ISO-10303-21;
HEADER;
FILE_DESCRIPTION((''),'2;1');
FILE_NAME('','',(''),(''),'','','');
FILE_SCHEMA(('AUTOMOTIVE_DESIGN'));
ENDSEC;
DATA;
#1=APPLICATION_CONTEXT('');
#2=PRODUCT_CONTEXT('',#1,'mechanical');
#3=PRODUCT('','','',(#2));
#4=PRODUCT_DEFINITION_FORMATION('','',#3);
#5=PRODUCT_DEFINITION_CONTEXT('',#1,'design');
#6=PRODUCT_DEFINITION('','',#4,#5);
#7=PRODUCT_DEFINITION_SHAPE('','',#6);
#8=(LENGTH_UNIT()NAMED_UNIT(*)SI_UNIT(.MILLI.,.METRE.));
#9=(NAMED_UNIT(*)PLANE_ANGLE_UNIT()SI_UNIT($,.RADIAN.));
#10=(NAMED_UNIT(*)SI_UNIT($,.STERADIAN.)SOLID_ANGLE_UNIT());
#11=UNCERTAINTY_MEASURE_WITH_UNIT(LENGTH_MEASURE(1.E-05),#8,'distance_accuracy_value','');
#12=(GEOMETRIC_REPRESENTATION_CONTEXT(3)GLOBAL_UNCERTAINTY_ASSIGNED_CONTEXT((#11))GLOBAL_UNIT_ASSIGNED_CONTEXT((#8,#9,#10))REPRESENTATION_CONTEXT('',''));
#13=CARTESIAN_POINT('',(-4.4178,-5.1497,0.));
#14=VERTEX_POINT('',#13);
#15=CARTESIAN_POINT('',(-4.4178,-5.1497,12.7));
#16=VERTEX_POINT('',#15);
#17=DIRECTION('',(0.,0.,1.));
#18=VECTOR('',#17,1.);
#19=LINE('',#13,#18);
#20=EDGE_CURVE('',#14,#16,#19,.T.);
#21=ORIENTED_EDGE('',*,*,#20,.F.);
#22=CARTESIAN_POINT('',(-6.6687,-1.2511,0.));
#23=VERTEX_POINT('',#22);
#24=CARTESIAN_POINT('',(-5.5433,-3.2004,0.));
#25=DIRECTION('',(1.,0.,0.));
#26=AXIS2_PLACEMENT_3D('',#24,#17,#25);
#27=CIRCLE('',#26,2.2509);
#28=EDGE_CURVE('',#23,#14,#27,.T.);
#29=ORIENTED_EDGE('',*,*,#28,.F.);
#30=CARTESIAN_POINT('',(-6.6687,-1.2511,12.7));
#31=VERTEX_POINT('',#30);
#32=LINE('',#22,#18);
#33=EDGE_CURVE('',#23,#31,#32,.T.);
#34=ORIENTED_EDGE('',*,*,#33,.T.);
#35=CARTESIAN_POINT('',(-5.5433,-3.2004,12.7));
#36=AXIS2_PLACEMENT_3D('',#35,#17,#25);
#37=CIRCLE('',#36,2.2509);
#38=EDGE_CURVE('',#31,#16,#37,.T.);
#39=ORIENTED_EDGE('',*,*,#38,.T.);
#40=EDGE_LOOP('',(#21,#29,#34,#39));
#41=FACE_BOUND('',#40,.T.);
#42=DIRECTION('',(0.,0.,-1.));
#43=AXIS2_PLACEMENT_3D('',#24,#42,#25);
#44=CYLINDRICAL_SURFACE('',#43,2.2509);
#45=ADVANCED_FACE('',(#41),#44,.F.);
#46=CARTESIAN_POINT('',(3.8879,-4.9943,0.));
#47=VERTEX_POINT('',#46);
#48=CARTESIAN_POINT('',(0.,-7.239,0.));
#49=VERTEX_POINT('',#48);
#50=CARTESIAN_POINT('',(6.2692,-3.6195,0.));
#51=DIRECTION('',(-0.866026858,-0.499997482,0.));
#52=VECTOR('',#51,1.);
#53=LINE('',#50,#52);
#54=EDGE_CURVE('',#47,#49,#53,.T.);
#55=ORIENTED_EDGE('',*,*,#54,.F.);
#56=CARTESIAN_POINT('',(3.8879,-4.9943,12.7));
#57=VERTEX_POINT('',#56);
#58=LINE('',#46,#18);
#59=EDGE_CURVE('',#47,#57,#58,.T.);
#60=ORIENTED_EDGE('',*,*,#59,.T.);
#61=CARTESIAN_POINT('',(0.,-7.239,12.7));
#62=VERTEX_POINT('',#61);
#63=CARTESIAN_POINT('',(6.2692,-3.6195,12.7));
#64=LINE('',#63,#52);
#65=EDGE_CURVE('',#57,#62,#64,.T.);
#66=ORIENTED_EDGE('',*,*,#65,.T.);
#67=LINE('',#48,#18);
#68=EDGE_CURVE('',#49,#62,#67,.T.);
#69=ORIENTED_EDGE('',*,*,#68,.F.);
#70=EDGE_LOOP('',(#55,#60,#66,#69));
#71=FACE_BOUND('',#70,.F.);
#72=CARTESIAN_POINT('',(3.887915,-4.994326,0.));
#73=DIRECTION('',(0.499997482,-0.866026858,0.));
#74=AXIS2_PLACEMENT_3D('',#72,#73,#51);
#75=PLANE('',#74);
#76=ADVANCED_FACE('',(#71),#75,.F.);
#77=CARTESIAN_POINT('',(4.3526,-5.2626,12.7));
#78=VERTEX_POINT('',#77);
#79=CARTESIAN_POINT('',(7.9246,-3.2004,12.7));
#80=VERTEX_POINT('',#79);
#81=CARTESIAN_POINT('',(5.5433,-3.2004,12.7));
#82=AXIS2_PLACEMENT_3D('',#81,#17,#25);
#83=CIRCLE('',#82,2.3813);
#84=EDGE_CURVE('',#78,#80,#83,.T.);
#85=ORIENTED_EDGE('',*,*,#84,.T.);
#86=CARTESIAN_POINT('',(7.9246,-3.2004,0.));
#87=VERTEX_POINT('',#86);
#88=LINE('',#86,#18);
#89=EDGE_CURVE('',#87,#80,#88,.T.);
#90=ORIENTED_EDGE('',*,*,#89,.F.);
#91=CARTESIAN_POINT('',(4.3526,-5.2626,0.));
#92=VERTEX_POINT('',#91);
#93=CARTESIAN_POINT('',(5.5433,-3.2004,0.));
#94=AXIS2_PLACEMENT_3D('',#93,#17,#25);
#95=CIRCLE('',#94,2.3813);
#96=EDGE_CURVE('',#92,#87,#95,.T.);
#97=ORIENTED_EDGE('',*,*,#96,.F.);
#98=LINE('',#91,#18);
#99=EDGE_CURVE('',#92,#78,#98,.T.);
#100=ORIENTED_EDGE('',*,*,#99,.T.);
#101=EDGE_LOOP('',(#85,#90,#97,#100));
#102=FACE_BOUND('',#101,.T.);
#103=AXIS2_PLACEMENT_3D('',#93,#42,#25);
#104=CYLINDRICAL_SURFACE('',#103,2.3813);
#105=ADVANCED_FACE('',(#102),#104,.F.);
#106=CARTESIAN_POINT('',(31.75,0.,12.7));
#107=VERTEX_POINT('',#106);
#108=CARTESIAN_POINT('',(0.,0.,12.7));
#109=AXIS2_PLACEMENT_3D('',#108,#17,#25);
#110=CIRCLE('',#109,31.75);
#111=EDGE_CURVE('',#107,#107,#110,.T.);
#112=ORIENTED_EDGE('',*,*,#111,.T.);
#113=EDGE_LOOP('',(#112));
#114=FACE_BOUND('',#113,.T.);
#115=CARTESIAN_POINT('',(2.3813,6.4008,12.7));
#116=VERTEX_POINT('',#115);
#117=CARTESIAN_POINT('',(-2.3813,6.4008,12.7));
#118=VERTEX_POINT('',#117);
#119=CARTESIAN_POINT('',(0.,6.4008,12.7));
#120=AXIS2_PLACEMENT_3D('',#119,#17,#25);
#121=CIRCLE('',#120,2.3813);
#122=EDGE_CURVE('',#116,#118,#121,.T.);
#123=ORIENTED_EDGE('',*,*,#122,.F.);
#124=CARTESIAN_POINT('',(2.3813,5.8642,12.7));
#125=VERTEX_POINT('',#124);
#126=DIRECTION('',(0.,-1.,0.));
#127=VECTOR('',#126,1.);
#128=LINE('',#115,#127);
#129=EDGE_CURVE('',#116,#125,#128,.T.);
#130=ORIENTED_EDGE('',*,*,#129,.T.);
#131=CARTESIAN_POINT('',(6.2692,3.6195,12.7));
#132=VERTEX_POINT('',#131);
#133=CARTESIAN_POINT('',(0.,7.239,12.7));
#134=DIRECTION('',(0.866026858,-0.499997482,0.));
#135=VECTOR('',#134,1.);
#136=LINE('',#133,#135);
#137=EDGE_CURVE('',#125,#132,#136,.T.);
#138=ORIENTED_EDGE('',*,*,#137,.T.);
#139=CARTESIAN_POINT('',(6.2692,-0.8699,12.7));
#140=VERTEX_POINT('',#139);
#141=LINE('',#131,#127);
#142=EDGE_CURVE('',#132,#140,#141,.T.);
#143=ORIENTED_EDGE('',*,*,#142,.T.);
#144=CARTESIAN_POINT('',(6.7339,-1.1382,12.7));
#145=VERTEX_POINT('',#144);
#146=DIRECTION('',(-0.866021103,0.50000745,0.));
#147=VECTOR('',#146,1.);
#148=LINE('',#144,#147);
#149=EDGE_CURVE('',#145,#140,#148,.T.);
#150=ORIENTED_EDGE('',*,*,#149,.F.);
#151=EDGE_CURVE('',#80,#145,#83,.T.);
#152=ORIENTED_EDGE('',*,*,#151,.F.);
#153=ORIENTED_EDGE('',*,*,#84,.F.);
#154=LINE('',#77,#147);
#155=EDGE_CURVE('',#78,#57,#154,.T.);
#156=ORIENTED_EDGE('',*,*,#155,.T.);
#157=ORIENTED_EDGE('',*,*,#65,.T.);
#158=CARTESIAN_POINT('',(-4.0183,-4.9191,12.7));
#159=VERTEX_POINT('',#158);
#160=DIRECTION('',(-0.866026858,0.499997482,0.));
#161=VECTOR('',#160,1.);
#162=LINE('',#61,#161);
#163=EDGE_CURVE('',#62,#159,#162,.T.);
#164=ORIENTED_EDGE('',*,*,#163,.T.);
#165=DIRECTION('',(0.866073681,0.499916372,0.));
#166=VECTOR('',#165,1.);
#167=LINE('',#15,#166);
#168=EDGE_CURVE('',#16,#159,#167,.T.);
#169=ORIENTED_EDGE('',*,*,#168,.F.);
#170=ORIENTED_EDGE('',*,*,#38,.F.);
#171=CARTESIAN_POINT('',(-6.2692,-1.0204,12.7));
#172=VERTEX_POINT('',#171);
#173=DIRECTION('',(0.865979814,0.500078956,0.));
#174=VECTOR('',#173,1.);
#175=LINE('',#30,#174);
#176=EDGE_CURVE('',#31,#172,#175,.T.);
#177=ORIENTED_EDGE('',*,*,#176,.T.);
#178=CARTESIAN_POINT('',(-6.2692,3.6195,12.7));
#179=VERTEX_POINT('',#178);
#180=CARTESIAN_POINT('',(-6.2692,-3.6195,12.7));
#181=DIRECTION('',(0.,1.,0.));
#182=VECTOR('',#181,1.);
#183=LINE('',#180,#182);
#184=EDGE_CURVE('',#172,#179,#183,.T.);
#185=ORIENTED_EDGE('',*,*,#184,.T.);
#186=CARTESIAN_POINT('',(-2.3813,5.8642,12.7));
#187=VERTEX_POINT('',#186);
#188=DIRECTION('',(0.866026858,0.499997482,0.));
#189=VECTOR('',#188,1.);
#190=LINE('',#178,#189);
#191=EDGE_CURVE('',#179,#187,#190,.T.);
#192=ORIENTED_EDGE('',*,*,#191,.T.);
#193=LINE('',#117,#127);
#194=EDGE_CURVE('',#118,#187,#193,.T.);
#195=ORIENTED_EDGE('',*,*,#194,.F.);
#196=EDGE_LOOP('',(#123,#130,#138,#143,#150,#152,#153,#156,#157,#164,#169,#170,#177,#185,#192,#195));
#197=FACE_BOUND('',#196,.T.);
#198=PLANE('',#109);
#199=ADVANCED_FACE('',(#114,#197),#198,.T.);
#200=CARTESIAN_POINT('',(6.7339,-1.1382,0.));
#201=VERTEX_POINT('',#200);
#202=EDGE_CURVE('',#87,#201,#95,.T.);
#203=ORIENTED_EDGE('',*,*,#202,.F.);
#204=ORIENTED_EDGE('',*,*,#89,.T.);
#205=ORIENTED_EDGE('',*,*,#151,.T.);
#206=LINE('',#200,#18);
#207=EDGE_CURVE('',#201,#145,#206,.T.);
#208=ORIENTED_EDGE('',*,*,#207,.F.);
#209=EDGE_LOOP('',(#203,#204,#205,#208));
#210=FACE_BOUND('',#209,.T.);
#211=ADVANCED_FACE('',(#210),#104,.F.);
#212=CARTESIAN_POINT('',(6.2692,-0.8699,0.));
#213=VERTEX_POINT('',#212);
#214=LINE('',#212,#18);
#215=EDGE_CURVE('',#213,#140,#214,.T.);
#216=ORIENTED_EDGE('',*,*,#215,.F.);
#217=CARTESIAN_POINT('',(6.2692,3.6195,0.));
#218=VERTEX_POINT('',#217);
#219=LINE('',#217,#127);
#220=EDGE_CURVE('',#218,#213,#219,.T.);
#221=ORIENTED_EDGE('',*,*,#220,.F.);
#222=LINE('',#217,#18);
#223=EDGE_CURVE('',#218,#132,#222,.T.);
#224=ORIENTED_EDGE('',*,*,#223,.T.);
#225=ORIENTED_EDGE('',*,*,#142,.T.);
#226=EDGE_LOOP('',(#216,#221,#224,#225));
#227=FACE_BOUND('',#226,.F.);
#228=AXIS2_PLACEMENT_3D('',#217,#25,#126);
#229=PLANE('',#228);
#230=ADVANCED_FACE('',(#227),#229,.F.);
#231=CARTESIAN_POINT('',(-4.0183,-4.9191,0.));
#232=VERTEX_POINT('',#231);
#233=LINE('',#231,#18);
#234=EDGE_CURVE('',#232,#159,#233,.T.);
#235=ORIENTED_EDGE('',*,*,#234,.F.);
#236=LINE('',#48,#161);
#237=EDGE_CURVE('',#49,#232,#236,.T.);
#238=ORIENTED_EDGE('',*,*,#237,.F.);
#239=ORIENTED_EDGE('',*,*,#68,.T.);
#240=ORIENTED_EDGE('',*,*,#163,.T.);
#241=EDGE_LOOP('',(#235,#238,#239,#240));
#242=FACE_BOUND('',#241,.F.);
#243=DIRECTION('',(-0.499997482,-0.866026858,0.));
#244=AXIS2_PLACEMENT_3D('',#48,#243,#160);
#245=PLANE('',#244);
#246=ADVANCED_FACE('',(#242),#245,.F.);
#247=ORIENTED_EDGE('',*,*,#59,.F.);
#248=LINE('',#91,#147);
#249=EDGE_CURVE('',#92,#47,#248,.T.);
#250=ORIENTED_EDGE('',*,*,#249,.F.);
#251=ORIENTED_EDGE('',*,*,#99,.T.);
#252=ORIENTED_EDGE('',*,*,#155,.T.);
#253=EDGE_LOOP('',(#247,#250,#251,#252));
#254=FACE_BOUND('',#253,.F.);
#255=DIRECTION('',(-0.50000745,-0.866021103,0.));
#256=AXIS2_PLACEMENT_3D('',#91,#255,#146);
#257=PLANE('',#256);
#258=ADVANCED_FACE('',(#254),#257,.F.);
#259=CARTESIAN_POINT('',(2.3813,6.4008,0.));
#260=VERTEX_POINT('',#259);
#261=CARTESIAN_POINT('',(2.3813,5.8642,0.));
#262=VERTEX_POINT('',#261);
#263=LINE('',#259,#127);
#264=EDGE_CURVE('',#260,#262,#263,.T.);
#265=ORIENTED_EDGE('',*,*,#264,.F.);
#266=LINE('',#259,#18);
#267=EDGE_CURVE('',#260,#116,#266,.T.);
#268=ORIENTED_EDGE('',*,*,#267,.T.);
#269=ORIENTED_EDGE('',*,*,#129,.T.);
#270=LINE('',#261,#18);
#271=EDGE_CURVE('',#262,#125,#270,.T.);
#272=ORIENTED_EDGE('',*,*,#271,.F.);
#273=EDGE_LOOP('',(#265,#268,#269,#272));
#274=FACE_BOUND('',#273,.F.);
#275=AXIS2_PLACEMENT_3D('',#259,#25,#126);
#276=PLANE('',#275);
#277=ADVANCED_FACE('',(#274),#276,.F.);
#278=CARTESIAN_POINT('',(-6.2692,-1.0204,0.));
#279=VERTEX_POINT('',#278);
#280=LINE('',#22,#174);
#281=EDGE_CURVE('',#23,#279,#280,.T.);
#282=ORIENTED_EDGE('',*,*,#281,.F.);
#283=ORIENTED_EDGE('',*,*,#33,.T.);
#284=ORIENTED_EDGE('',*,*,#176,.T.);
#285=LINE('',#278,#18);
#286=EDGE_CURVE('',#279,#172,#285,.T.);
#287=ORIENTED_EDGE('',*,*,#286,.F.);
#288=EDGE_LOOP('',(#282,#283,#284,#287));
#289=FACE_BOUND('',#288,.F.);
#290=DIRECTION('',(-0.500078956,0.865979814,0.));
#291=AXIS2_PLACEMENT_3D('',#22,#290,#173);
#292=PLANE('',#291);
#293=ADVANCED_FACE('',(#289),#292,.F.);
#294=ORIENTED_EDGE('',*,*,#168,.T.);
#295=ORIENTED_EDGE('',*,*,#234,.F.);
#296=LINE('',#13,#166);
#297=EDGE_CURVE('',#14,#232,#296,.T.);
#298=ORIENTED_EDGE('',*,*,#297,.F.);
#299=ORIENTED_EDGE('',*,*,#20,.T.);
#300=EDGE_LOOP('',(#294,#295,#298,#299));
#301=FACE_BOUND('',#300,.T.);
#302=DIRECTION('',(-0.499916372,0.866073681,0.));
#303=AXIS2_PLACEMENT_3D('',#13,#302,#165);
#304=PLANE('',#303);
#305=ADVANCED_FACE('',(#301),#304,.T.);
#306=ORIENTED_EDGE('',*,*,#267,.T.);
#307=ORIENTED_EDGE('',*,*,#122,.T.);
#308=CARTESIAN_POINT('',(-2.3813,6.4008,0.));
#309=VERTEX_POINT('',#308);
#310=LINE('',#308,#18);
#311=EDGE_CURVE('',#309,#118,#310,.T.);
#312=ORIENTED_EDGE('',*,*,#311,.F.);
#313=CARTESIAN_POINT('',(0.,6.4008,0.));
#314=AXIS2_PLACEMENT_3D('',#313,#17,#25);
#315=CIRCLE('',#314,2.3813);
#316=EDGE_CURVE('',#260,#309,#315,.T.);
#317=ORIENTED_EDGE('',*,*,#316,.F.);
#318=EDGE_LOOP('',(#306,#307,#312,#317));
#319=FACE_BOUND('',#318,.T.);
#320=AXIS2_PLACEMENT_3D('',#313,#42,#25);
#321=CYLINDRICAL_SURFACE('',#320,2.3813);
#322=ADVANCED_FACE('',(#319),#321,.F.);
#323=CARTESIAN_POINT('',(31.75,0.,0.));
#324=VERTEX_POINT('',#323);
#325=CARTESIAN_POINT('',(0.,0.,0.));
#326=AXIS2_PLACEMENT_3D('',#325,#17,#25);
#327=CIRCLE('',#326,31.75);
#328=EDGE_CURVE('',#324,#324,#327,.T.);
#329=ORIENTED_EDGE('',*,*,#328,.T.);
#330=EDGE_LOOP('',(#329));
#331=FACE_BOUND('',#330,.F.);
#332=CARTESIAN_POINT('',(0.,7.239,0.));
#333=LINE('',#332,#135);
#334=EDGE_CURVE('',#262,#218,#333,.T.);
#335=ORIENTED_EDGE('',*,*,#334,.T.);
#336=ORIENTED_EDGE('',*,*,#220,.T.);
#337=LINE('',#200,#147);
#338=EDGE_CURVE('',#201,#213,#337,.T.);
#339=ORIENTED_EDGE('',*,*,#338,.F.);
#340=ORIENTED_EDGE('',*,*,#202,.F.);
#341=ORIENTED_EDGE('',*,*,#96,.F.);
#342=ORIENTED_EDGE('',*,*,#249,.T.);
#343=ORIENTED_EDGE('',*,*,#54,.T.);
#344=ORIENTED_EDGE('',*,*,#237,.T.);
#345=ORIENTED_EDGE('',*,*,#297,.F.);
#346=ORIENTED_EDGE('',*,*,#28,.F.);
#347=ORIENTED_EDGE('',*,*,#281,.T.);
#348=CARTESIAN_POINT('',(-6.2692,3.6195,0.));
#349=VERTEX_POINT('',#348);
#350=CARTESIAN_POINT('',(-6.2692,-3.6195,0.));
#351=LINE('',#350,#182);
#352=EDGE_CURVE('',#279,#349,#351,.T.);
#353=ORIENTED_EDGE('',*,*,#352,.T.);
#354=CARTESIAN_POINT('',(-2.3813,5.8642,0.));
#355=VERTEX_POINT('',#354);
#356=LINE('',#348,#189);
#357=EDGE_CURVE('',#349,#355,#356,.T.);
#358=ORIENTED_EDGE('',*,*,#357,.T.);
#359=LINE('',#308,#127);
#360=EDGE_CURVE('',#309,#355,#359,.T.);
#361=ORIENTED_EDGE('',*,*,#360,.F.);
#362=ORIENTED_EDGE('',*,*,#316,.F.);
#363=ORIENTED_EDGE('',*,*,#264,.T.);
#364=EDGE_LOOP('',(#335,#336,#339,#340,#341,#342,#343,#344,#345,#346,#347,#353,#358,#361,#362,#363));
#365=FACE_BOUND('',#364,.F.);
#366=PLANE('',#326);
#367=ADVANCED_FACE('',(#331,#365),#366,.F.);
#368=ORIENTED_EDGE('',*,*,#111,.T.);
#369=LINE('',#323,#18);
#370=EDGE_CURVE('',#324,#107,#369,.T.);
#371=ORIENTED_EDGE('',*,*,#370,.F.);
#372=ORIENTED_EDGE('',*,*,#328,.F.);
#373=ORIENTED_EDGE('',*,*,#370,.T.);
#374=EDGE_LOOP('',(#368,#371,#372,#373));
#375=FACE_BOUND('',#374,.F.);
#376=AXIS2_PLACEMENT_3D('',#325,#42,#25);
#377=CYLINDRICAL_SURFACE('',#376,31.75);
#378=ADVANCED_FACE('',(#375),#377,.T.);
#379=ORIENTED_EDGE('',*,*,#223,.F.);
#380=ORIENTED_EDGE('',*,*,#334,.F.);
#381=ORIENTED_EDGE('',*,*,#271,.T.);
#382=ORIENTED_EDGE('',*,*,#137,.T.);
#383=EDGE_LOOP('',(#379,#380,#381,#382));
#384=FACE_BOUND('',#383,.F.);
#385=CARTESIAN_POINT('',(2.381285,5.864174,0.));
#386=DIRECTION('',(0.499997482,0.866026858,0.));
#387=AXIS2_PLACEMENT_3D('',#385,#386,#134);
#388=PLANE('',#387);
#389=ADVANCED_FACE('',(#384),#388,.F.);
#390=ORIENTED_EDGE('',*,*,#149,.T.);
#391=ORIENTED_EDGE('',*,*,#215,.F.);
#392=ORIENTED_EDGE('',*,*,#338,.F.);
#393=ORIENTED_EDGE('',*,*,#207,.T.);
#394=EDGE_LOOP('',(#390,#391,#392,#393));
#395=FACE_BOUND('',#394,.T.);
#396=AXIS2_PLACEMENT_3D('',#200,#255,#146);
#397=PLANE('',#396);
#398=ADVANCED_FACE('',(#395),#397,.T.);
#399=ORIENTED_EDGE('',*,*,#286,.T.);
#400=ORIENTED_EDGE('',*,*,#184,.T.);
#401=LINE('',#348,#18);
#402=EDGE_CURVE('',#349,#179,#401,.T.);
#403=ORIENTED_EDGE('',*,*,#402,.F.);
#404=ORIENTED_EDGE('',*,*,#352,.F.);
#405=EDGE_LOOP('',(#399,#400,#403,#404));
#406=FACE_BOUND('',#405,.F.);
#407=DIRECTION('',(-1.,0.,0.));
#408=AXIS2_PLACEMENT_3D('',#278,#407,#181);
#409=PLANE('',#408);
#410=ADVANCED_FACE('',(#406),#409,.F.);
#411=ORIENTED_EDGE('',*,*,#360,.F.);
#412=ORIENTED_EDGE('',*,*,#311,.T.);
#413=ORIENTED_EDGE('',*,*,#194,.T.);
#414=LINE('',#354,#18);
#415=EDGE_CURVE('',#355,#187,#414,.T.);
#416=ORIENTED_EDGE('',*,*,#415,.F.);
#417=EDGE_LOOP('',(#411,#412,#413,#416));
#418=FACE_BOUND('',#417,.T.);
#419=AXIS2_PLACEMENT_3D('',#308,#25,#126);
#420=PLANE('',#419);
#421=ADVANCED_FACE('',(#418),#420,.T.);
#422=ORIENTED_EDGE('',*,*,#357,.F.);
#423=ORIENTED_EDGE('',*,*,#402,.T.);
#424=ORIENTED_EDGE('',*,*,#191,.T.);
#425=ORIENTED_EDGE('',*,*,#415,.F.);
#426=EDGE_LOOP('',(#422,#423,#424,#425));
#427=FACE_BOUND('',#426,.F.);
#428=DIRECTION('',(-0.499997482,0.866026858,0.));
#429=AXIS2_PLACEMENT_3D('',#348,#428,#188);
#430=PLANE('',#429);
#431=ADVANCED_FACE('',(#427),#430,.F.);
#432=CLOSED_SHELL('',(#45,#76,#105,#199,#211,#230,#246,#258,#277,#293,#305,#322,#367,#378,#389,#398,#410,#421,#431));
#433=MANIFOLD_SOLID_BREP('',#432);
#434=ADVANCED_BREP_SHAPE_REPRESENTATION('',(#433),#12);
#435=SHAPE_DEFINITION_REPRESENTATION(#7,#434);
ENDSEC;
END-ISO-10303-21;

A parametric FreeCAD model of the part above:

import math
import FreeCAD as App
import Part
import Sketcher

V = App.Vector
Q = App.Units.Quantity

doc = App.newDocument("Part")
body = doc.addObject("PartDesign::Body", "Body")

sketch1 = body.newObject("Sketcher::SketchObject", "Sketch")
sketch1.AttachmentSupport = (doc.getObject("XY_Plane"), [""])
sketch1.MapMode = "FlatFace"
sketch1.addGeometry(Part.Circle(V(0, 0, 0), V(0, 0, 1), 31.75), False)
sketch1.addGeometry(Part.LineSegment(V(2.38, 6.4, 0), V(2.38, 5.86, 0)), False)
sketch1.addGeometry(Part.LineSegment(V(2.38, 5.86, 0), V(6.27, 3.62, 0)), False)
sketch1.addGeometry(Part.LineSegment(V(6.27, 3.62, 0), V(6.27, -0.87, 0)), False)
sketch1.addGeometry(Part.LineSegment(V(6.27, -0.87, 0), V(6.73, -1.14, 0)), False)
sketch1.addGeometry(Part.ArcOfCircle(Part.Circle(V(5.54, -3.2, 0), V(0, 0, 1), 2.38), math.radians(-120), math.radians(60)), False)
sketch1.addGeometry(Part.LineSegment(V(4.35, -5.26, 0), V(3.89, -4.99, 0)), False)
sketch1.addGeometry(Part.LineSegment(V(3.89, -4.99, 0), V(0, -7.24, 0)), False)
sketch1.addGeometry(Part.LineSegment(V(0, -7.24, 0), V(-4.02, -4.92, 0)), False)
sketch1.addGeometry(Part.LineSegment(V(-4.02, -4.92, 0), V(-4.42, -5.15, 0)), False)
sketch1.addGeometry(Part.ArcOfCircle(Part.Circle(V(-5.54, -3.2, 0), V(0, 0, 1), 2.25), math.radians(120), math.radians(300)), False)
sketch1.addGeometry(Part.LineSegment(V(-6.67, -1.25, 0), V(-6.27, -1.02, 0)), False)
sketch1.addGeometry(Part.LineSegment(V(-6.27, -1.02, 0), V(-6.27, 3.62, 0)), False)
sketch1.addGeometry(Part.LineSegment(V(-6.27, 3.62, 0), V(-2.38, 5.86, 0)), False)
sketch1.addGeometry(Part.LineSegment(V(-2.38, 5.86, 0), V(-2.38, 6.4, 0)), False)
sketch1.addGeometry(Part.ArcOfCircle(Part.Circle(V(0, 6.4, 0), V(0, 0, 1), 2.38), math.radians(0), math.radians(180)), False)
sketch1.addConstraint(Sketcher.Constraint("Coincident", 1, 2, 2, 1))
sketch1.addConstraint(Sketcher.Constraint("Coincident", 2, 2, 3, 1))
sketch1.addConstraint(Sketcher.Constraint("Coincident", 3, 2, 4, 1))
sketch1.addConstraint(Sketcher.Constraint("Tangent", 4, 2, 5, 2))
sketch1.addConstraint(Sketcher.Constraint("Tangent", 5, 1, 6, 1))
sketch1.addConstraint(Sketcher.Constraint("Coincident", 6, 2, 7, 1))
sketch1.addConstraint(Sketcher.Constraint("Coincident", 7, 2, 8, 1))
sketch1.addConstraint(Sketcher.Constraint("Coincident", 8, 2, 9, 1))
sketch1.addConstraint(Sketcher.Constraint("Tangent", 9, 2, 10, 2))
sketch1.addConstraint(Sketcher.Constraint("Tangent", 10, 1, 11, 1))
sketch1.addConstraint(Sketcher.Constraint("Coincident", 11, 2, 12, 1))
sketch1.addConstraint(Sketcher.Constraint("Coincident", 12, 2, 13, 1))
sketch1.addConstraint(Sketcher.Constraint("Coincident", 13, 2, 14, 1))
sketch1.addConstraint(Sketcher.Constraint("Tangent", 14, 2, 15, 2))
sketch1.addConstraint(Sketcher.Constraint("Tangent", 15, 1, 1, 1))
sketch1.addConstraint(Sketcher.Constraint("Vertical", 1))
sketch1.addConstraint(Sketcher.Constraint("Vertical", 3))
sketch1.addConstraint(Sketcher.Constraint("Vertical", 12))
sketch1.addConstraint(Sketcher.Constraint("Vertical", 14))
sketch1.addConstraint(Sketcher.Constraint("Coincident", 0, 3, -1, 1))
sketch1.addConstraint(Sketcher.Constraint("Equal", 5, 15))
sketch1.addConstraint(Sketcher.Constraint("Symmetric", 5, 3, 10, 3, -2))
sketch1.addConstraint(Sketcher.Constraint("Symmetric", 2, 2, 12, 2, -2))
sketch1.addConstraint(Sketcher.Constraint("Symmetric", 1, 2, 13, 2, -2))
sketch1.addConstraint(Sketcher.Constraint("PointOnObject", 7, 2, -2))
sketch1.addConstraint(Sketcher.Constraint("Parallel", 2, 4))
sketch1.addConstraint(Sketcher.Constraint("Parallel", 4, 6))
sketch1.addConstraint(Sketcher.Constraint("Parallel", 6, 8))
sketch1.addConstraint(Sketcher.Constraint("Parallel", 7, 9))
sketch1.addConstraint(Sketcher.Constraint("Parallel", 9, 11))
sketch1.addConstraint(Sketcher.Constraint("Parallel", 11, 13))
sketch1.addConstraint(Sketcher.Constraint("Equal", 4, 6))
sketch1.addConstraint(Sketcher.Constraint("Equal", 2, 7))
sketch1.addConstraint(Sketcher.Constraint("Diameter", 0, Q("2.5 in")))
sketch1.addConstraint(Sketcher.Constraint("Radius", 5, Q("0.093752 in")))
sketch1.addConstraint(Sketcher.Constraint("Radius", 10, 2.251))
sketch1.addConstraint(Sketcher.Constraint("DistanceY", -1, 1, 15, 3, Q("0.252 in")))
sketch1.addConstraint(Sketcher.Constraint("DistanceY", 7, 2, -1, 1, Q("0.285 in")))
sketch1.addConstraint(Sketcher.Constraint("DistanceY", 5, 3, -1, 1, Q("0.126 in")))
sketch1.addConstraint(Sketcher.Constraint("DistanceX", 10, 3, 1, 2, Q("0.312 in")))
sketch1.addConstraint(Sketcher.Constraint("DistanceY", 1, 2, 1, 1, 0.5366))
pad1 = body.newObject("PartDesign::Pad", "Pad")
pad1.Profile = sketch1
pad1.Length = Q("0.5 in")

doc.recompute()
